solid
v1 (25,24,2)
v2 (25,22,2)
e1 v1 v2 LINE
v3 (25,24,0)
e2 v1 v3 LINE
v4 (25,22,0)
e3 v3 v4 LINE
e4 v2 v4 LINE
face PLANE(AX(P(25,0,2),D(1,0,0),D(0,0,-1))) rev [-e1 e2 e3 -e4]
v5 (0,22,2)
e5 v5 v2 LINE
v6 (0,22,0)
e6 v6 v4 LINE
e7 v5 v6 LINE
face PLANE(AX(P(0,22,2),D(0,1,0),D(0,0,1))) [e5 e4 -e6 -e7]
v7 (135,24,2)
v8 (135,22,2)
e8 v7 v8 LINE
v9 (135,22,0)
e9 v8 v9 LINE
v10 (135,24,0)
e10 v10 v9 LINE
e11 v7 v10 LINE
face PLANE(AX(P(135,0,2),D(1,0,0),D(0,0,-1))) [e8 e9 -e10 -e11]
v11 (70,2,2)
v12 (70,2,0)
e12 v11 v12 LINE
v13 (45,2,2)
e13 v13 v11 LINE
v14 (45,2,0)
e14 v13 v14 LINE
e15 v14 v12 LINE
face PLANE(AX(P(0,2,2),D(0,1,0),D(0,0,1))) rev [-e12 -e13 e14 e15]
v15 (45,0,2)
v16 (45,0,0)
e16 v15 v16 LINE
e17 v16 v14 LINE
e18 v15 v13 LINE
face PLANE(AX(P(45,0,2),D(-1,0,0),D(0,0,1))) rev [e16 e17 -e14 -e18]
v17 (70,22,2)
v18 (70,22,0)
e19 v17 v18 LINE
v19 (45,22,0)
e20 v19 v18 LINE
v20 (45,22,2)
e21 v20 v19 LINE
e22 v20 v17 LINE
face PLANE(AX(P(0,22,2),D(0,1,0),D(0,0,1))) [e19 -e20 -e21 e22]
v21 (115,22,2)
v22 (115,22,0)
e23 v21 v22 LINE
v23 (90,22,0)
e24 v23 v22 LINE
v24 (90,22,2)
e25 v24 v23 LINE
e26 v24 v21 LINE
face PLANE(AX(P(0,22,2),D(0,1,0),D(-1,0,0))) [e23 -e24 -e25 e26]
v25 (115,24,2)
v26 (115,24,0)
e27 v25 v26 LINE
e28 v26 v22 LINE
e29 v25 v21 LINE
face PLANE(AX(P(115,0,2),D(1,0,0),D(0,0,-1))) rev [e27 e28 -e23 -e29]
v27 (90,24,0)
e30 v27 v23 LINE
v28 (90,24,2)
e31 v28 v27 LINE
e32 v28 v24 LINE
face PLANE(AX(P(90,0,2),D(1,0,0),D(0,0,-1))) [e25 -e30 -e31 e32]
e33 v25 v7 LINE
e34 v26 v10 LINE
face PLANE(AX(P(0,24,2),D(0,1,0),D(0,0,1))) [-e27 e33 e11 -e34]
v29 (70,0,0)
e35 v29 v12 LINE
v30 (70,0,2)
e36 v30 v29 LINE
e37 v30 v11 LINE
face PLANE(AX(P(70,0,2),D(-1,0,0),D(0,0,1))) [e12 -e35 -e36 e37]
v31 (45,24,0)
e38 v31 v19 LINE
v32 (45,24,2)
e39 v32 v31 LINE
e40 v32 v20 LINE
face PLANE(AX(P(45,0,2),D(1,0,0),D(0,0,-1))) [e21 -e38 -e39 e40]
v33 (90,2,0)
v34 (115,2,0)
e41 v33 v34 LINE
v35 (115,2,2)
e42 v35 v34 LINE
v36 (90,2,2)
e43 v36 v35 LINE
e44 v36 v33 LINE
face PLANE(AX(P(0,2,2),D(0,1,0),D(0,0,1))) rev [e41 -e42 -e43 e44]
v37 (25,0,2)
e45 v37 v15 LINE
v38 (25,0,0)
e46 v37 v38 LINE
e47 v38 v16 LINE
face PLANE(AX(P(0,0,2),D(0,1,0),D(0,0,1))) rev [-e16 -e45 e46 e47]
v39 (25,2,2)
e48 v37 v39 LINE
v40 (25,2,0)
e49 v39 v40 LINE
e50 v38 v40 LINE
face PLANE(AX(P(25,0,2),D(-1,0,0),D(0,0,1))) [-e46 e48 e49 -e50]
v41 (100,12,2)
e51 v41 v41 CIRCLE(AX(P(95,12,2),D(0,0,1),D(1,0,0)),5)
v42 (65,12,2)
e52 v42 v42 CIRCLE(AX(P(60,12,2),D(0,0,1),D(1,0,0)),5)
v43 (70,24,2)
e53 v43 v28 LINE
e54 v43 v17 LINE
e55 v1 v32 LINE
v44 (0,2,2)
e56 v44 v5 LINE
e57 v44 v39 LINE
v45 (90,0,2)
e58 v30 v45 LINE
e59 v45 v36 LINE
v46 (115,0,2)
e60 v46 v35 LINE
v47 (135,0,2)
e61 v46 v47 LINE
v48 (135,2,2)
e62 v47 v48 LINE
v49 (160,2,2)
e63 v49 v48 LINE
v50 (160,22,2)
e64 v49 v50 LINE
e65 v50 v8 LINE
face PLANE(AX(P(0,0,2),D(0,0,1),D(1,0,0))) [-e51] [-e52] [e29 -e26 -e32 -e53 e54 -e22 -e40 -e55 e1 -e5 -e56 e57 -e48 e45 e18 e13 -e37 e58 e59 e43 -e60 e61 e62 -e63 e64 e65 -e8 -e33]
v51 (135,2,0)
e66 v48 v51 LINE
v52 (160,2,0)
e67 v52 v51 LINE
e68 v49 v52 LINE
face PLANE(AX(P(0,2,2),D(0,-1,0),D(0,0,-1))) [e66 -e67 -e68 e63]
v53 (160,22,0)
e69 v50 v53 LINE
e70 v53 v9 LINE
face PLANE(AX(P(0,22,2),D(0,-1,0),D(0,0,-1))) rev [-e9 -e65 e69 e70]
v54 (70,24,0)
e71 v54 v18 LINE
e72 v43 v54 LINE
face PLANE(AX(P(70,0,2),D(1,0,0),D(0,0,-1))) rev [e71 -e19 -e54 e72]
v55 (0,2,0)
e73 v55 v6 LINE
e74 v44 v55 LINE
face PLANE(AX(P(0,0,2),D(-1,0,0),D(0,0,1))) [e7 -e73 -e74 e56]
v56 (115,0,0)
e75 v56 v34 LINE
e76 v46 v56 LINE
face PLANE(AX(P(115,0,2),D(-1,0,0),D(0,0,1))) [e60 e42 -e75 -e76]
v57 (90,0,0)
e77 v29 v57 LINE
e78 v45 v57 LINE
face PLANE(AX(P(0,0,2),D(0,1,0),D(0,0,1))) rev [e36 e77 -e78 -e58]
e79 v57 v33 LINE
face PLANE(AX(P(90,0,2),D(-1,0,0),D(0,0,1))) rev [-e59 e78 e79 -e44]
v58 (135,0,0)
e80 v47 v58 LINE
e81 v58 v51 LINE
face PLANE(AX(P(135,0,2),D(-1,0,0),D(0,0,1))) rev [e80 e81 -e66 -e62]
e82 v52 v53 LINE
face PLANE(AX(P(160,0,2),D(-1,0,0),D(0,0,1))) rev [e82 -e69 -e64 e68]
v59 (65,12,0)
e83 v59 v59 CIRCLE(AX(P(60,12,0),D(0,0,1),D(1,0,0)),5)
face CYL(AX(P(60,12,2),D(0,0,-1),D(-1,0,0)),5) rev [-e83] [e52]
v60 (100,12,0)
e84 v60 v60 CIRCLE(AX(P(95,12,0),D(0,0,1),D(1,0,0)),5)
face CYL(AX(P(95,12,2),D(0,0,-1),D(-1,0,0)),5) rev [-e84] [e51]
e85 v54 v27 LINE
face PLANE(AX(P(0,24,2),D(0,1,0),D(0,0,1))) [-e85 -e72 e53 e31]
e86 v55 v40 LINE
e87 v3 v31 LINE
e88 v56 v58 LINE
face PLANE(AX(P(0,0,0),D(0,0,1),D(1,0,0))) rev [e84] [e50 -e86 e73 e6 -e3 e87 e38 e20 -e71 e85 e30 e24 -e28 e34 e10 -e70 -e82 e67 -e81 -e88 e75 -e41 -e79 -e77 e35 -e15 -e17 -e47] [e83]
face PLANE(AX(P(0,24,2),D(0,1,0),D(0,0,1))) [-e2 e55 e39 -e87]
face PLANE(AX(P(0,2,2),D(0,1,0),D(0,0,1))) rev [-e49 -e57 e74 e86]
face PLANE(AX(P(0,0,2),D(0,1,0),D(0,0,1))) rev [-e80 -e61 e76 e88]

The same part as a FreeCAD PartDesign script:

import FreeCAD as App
import Part
import Sketcher

V = App.Vector


def add_polygon(sketch, points):
    """Adds a closed chain of lines whose ends are joined by coincident constraints."""
    first, n = sketch.GeometryCount, len(points)
    for a, b in zip(points, points[1:] + points[:1]):
        sketch.addGeometry(Part.LineSegment(App.Vector(*a, 0), App.Vector(*b, 0)), False)
    for i in range(n):
        sketch.addConstraint(Sketcher.Constraint("Coincident", first + i, 2, first + (i + 1) % n, 1))

doc = App.newDocument("Part")
body = doc.addObject("PartDesign::Body", "Body")

sketch1 = doc.addObject("Sketcher::SketchObject", "Sketch")
body.addObject(sketch1)
sketch1.AttachmentSupport = (doc.XY_Plane, [""])
sketch1.MapMode = "FlatFace"
add_polygon(sketch1, [(25, 2), (25, 0), (45, 0), (45, 2), (70, 2), (70, 0), (90, 0), (90, 2), (115, 2), (115, 0), (135, 0), (135, 2), (160, 2), (160, 22), (135, 22), (135, 24), (115, 24), (115, 22), (90, 22), (90, 24), (70, 24), (70, 22), (45, 22), (45, 24), (25, 24), (25, 22), (0, 22), (0, 2)])
sketch1.addGeometry(Part.Circle(V(60, 12, 0), V(0, 0, 1), 5), False)
sketch1.addGeometry(Part.Circle(V(95, 12, 0), V(0, 0, 1), 5), False)
sketch1.addConstraint(Sketcher.Constraint("Vertical", 0))
sketch1.addConstraint(Sketcher.Constraint("Horizontal", 1))
sketch1.addConstraint(Sketcher.Constraint("Vertical", 2))
sketch1.addConstraint(Sketcher.Constraint("Horizontal", 3))
sketch1.addConstraint(Sketcher.Constraint("Vertical", 4))
sketch1.addConstraint(Sketcher.Constraint("Horizontal", 5))
sketch1.addConstraint(Sketcher.Constraint("Vertical", 6))
sketch1.addConstraint(Sketcher.Constraint("Horizontal", 7))
sketch1.addConstraint(Sketcher.Constraint("Vertical", 8))
sketch1.addConstraint(Sketcher.Constraint("Horizontal", 9))
sketch1.addConstraint(Sketcher.Constraint("Vertical", 10))
sketch1.addConstraint(Sketcher.Constraint("Horizontal", 11))
sketch1.addConstraint(Sketcher.Constraint("Vertical", 12))
sketch1.addConstraint(Sketcher.Constraint("Horizontal", 13))
sketch1.addConstraint(Sketcher.Constraint("Vertical", 14))
sketch1.addConstraint(Sketcher.Constraint("Horizontal", 15))
sketch1.addConstraint(Sketcher.Constraint("Vertical", 16))
sketch1.addConstraint(Sketcher.Constraint("Horizontal", 17))
sketch1.addConstraint(Sketcher.Constraint("Vertical", 18))
sketch1.addConstraint(Sketcher.Constraint("Horizontal", 19))
sketch1.addConstraint(Sketcher.Constraint("Vertical", 20))
sketch1.addConstraint(Sketcher.Constraint("Horizontal", 21))
sketch1.addConstraint(Sketcher.Constraint("Vertical", 22))
sketch1.addConstraint(Sketcher.Constraint("Horizontal", 23))
sketch1.addConstraint(Sketcher.Constraint("Vertical", 24))
sketch1.addConstraint(Sketcher.Constraint("Horizontal", 25))
sketch1.addConstraint(Sketcher.Constraint("Vertical", 26))
sketch1.addConstraint(Sketcher.Constraint("Horizontal", 27))
sketch1.addConstraint(Sketcher.Constraint("Equal", 28, 29))
sketch1.addConstraint(Sketcher.Constraint("PointOnObject", 0, 2, -1))
sketch1.addConstraint(Sketcher.Constraint("PointOnObject", 4, 2, -1))
sketch1.addConstraint(Sketcher.Constraint("PointOnObject", 8, 2, -1))
sketch1.addConstraint(Sketcher.Constraint("PointOnObject", 25, 2, -2))
sketch1.addConstraint(Sketcher.Constraint("Horizontal", 28, 3, 29, 3))
sketch1.addConstraint(Sketcher.Constraint("Horizontal", 3, 2, 6, 2))
sketch1.addConstraint(Sketcher.Constraint("Horizontal", 7, 2, 10, 2))
sketch1.addConstraint(Sketcher.Constraint("Horizontal", 13, 2, 16, 2))
sketch1.addConstraint(Sketcher.Constraint("Horizontal", 15, 2, 18, 2))
sketch1.addConstraint(Sketcher.Constraint("Horizontal", 17, 2, 20, 2))
sketch1.addConstraint(Sketcher.Constraint("Horizontal", 19, 2, 22, 2))
sketch1.addConstraint(Sketcher.Constraint("Horizontal", 21, 2, 24, 2))
sketch1.addConstraint(Sketcher.Constraint("Horizontal", 11, 2, 26, 2))
sketch1.addConstraint(Sketcher.Constraint("Vertical", 10, 2, 13, 2))
sketch1.addConstraint(Sketcher.Constraint("Vertical", 8, 2, 15, 2))
sketch1.addConstraint(Sketcher.Constraint("Vertical", 6, 2, 17, 2))
sketch1.addConstraint(Sketcher.Constraint("Vertical", 4, 2, 19, 2))
sketch1.addConstraint(Sketcher.Constraint("Vertical", 2, 2, 21, 2))
sketch1.addConstraint(Sketcher.Constraint("Vertical", 0, 2, 23, 2))
sketch1.addConstraint(Sketcher.Constraint("Equal", 1, 5))
sketch1.addConstraint(Sketcher.Constraint("Equal", 3, 7))
sketch1.addConstraint(Sketcher.Constraint("Equal", 5, 9))
sketch1.addConstraint(Sketcher.Constraint("Equal", 7, 11))
sketch1.addConstraint(Sketcher.Constraint("Equal", 21, 25))
sketch1.addConstraint(Sketcher.Constraint("Equal", 23, 12))
sketch1.addConstraint(Sketcher.Constraint("Equal", 10, 14))
sketch1.addConstraint(Sketcher.Constraint("Diameter", 28, 10.0))
sketch1.addConstraint(Sketcher.Constraint("DistanceX", 1, 1, 1, 2, 20.0))
sketch1.addConstraint(Sketcher.Constraint("DistanceX", 3, 1, 3, 2, 25.0))
sketch1.addConstraint(Sketcher.Constraint("DistanceY", 0, 2, 0, 1, 2.0))
sketch1.addConstraint(Sketcher.Constraint("DistanceX", -1, 1, 28, 3, 60.0))
sketch1.addConstraint(Sketcher.Constraint("DistanceY", -1, 1, 28, 3, 12.0))
sketch1.addConstraint(Sketcher.Constraint("DistanceX", -1, 1, 29, 3, 95.0))
pad1 = doc.addObject("PartDesign::Pad", "Pad")
body.addObject(pad1)
pad1.Profile = sketch1
pad1.Length = 2

doc.recompute()
